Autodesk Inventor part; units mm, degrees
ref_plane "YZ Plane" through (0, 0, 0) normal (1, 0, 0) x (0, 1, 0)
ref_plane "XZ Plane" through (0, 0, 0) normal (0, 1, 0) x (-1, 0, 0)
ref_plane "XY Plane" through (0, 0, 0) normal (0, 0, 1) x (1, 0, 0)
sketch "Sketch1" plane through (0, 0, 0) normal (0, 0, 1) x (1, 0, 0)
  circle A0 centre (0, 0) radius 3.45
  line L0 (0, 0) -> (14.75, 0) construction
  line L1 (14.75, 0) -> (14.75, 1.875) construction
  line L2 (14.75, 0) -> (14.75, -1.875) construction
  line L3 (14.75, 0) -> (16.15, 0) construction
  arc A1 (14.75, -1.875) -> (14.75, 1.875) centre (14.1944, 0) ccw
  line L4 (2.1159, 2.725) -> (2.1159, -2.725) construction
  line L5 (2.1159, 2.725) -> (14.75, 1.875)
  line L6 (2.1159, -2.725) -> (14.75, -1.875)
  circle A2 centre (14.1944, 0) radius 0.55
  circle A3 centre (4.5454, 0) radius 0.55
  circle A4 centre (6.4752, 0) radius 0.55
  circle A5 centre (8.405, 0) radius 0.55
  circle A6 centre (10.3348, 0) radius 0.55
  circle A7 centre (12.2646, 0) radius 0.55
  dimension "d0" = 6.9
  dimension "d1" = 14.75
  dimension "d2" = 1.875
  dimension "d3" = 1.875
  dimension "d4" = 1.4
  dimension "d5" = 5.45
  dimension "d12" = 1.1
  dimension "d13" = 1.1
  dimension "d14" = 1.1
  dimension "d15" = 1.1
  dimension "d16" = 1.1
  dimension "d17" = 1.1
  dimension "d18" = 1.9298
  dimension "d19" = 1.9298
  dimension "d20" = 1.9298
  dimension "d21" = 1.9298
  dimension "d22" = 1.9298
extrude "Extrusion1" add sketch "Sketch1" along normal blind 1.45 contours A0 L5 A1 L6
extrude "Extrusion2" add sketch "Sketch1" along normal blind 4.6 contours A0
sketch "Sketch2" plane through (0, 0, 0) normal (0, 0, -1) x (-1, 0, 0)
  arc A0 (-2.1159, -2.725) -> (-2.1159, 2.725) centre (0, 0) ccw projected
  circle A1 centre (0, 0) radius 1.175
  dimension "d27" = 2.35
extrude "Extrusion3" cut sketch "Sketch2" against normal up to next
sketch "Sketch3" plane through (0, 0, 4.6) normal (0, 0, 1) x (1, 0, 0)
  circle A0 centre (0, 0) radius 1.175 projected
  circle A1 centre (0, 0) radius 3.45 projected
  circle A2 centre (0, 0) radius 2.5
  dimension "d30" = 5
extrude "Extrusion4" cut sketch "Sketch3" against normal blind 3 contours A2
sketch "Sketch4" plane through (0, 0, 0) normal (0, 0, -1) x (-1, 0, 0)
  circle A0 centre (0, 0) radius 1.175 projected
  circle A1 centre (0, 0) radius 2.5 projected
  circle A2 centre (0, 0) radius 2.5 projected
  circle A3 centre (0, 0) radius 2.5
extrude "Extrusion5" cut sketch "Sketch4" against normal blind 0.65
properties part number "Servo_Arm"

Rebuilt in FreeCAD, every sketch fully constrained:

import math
import FreeCAD as App
import Part
import Sketcher
from FreeCAD import Vector
Q = App.Units.Quantity

doc = App.newDocument("Part")
params = doc.addObject("Spreadsheet::Sheet", "Params")
for row, (alias, value) in enumerate([
    ("sketch1_diameter", "1.1 mm"),
    ("sketch1_radius", "3.45 mm"),
    ("pad1_length", "1.45 mm"),
    ("sketch2_diameter", "6.9 mm"),
    ("pad2_length", "4.6 mm"),
    ("sketch3_diameter", "2.35 mm"),
    ("sketch4_diameter", "5 mm"),
    ("sketch4_diameter2", "2.35 mm"),
    ("pocket2_length", "3 mm"),
    ("sketch5_diameter", "5 mm"),
    ("sketch5_diameter2", "2.35 mm"),
    ("pocket3_length", "0.65 mm"),
], start=1):
    params.set(f"A{row}", alias)
    params.set(f"B{row}", "=" + value)
    params.setAlias(f"B{row}", alias)

body = doc.addObject("PartDesign::Body", "Body")

sketch1 = doc.addObject("Sketcher::SketchObject", "Sketch")
body.addObject(sketch1)
sketch1.AttachmentSupport = (doc.XY_Plane, [""])
sketch1.MapMode = "FlatFace"
sketch1.addGeometry([
    Part.ArcOfCircle(Part.Circle(Vector(0, 0, 0), Vector(0, 0, 1), 3.5), math.radians(-52), math.radians(52)),
    Part.LineSegment(Vector(2.1, -2.7, 0), Vector(14.8, -1.9, 0)),
    Part.ArcOfCircle(Part.Circle(Vector(14.2, 0, 0), Vector(0, 0, 1), 2), math.radians(-73), math.radians(73)),
    Part.LineSegment(Vector(14.8, 1.9, 0), Vector(2.1, 2.7, 0)),
    Part.Circle(Vector(4.5, 0, 0), Vector(0, 0, 1), 0.6),
    Part.Circle(Vector(6.5, 0, 0), Vector(0, 0, 1), 0.6),
    Part.Circle(Vector(8.4, 0, 0), Vector(0, 0, 1), 0.6),
    Part.Circle(Vector(10.3, 0, 0), Vector(0, 0, 1), 0.6),
    Part.Circle(Vector(12.3, 0, 0), Vector(0, 0, 1), 0.6),
    Part.Circle(Vector(14.2, 0, 0), Vector(0, 0, 1), 0.6),
], False)
sketch1.addConstraint([
    Sketcher.Constraint("Coincident", 0, 1, 1, 1),
    Sketcher.Constraint("Coincident", 1, 2, 2, 1),
    Sketcher.Constraint("Coincident", 2, 2, 3, 1),
    Sketcher.Constraint("Coincident", 3, 2, 0, 2),
    Sketcher.Constraint("Coincident", 0, 3, -1, 1),
    Sketcher.Constraint("Coincident", 9, 3, 2, 3),
    Sketcher.Constraint("Equal", 4, 5),
    Sketcher.Constraint("Equal", 5, 6),
    Sketcher.Constraint("Equal", 6, 7),
    Sketcher.Constraint("Equal", 7, 8),
    Sketcher.Constraint("Equal", 8, 9),
    Sketcher.Constraint("Symmetric", 1, 2, 2, 2, -1),
    Sketcher.Constraint("PointOnObject", 4, 3, -1),
    Sketcher.Constraint("PointOnObject", 5, 3, -1),
    Sketcher.Constraint("PointOnObject", 6, 3, -1),
    Sketcher.Constraint("PointOnObject", 7, 3, -1),
    Sketcher.Constraint("PointOnObject", 8, 3, -1),
    Sketcher.Constraint("Vertical", 0, 1, 3, 2),
    Sketcher.Constraint("Diameter", 4, Q("1.1 mm")),
    Sketcher.Constraint("Radius", 0, Q("3.45 mm")),
    Sketcher.Constraint("DistanceX", -1, 1, 1, 2, Q("14.75 mm")),
    Sketcher.Constraint("DistanceY", 0, 1, 3, 2, Q("5.45 mm")),
    Sketcher.Constraint("DistanceY", 1, 2, -1, 1, Q("1.875 mm")),
    Sketcher.Constraint("Radius", 2, Q("1.9556 mm")),
    Sketcher.Constraint("DistanceX", 4, 3, 5, 3, Q("1.9298 mm")),
    Sketcher.Constraint("DistanceX", 5, 3, 6, 3, Q("1.9298 mm")),
    Sketcher.Constraint("DistanceX", 6, 3, 7, 3, Q("1.9298 mm")),
    Sketcher.Constraint("DistanceX", 8, 3, 2, 3, Q("1.9298 mm")),
    Sketcher.Constraint("DistanceX", 7, 3, 8, 3, Q("1.9298 mm")),
])
sketch1.setExpression("Constraints[18]", "Params.sketch1_diameter")
sketch1.setExpression("Constraints[19]", "Params.sketch1_radius")
pad1 = doc.addObject("PartDesign::Pad", "Pad")
body.addObject(pad1)
pad1.Profile = sketch1
pad1.setExpression("Length", "Params.pad1_length")

sketch2 = doc.addObject("Sketcher::SketchObject", "Sketch001")
body.addObject(sketch2)
sketch2.AttachmentSupport = (doc.XY_Plane, [""])
sketch2.MapMode = "FlatFace"
sketch2.addGeometry(Part.Circle(Vector(0, 0, 0), Vector(0, 0, 1), 3.5), False)
sketch2.addConstraint([
    Sketcher.Constraint("Coincident", 0, 3, -1, 1),
    Sketcher.Constraint("Diameter", 0, Q("6.9 mm")),
])
sketch2.setExpression("Constraints[1]", "Params.sketch2_diameter")
pad2 = doc.addObject("PartDesign::Pad", "Pad001")
body.addObject(pad2)
pad2.Profile = sketch2
pad2.setExpression("Length", "Params.pad2_length")

sketch3 = doc.addObject("Sketcher::SketchObject", "Sketch002")
body.addObject(sketch3)
sketch3.AttachmentSupport = (doc.XY_Plane, [""])
sketch3.MapMode = "FlatFace"
sketch3.addGeometry(Part.Circle(Vector(0, 0, 0), Vector(0, 0, 1), 1.2), False)
sketch3.addConstraint([
    Sketcher.Constraint("Coincident", 0, 3, -1, 1),
    Sketcher.Constraint("Diameter", 0, Q("2.35 mm")),
])
sketch3.setExpression("Constraints[1]", "Params.sketch3_diameter")
pocket1 = doc.addObject("PartDesign::Pocket", "Pocket")
body.addObject(pocket1)
pocket1.Profile = sketch3
pocket1.Type = "UpToFirst"
pocket1.Reversed = True

sketch4 = doc.addObject("Sketcher::SketchObject", "Sketch003")
body.addObject(sketch4)
sketch4.AttachmentSupport = (doc.XY_Plane, [""])
sketch4.MapMode = "FlatFace"
sketch4.AttachmentOffset = App.Placement(Vector(0, 0, 4.6), App.Rotation())
sketch4.addGeometry([
    Part.Circle(Vector(0, 0, 0), Vector(0, 0, 1), 2.5),
    Part.Circle(Vector(0, 0, 0), Vector(0, 0, 1), 1.2),
], False)
sketch4.addConstraint([
    Sketcher.Constraint("Coincident", 0, 3, -1, 1),
    Sketcher.Constraint("Coincident", 1, 3, -1, 1),
    Sketcher.Constraint("Diameter", 0, Q("5 mm")),
    Sketcher.Constraint("Diameter", 1, Q("2.35 mm")),
])
sketch4.setExpression("Constraints[2]", "Params.sketch4_diameter")
sketch4.setExpression("Constraints[3]", "Params.sketch4_diameter2")
pocket2 = doc.addObject("PartDesign::Pocket", "Pocket001")
body.addObject(pocket2)
pocket2.Profile = sketch4
pocket2.setExpression("Length", "Params.pocket2_length")

sketch5 = doc.addObject("Sketcher::SketchObject", "Sketch004")
body.addObject(sketch5)
sketch5.AttachmentSupport = (doc.XY_Plane, [""])
sketch5.MapMode = "FlatFace"
sketch5.addGeometry([
    Part.Circle(Vector(0, 0, 0), Vector(0, 0, 1), 2.5),
    Part.Circle(Vector(0, 0, 0), Vector(0, 0, 1), 1.2),
], False)
sketch5.addConstraint([
    Sketcher.Constraint("Coincident", 0, 3, -1, 1),
    Sketcher.Constraint("Coincident", 1, 3, -1, 1),
    Sketcher.Constraint("Diameter", 0, Q("5 mm")),
    Sketcher.Constraint("Diameter", 1, Q("2.35 mm")),
])
sketch5.setExpression("Constraints[2]", "Params.sketch5_diameter")
sketch5.setExpression("Constraints[3]", "Params.sketch5_diameter2")
pocket3 = doc.addObject("PartDesign::Pocket", "Pocket002")
body.addObject(pocket3)
pocket3.Profile = sketch5
pocket3.setExpression("Length", "Params.pocket3_length")
pocket3.Reversed = True

doc.recompute()
